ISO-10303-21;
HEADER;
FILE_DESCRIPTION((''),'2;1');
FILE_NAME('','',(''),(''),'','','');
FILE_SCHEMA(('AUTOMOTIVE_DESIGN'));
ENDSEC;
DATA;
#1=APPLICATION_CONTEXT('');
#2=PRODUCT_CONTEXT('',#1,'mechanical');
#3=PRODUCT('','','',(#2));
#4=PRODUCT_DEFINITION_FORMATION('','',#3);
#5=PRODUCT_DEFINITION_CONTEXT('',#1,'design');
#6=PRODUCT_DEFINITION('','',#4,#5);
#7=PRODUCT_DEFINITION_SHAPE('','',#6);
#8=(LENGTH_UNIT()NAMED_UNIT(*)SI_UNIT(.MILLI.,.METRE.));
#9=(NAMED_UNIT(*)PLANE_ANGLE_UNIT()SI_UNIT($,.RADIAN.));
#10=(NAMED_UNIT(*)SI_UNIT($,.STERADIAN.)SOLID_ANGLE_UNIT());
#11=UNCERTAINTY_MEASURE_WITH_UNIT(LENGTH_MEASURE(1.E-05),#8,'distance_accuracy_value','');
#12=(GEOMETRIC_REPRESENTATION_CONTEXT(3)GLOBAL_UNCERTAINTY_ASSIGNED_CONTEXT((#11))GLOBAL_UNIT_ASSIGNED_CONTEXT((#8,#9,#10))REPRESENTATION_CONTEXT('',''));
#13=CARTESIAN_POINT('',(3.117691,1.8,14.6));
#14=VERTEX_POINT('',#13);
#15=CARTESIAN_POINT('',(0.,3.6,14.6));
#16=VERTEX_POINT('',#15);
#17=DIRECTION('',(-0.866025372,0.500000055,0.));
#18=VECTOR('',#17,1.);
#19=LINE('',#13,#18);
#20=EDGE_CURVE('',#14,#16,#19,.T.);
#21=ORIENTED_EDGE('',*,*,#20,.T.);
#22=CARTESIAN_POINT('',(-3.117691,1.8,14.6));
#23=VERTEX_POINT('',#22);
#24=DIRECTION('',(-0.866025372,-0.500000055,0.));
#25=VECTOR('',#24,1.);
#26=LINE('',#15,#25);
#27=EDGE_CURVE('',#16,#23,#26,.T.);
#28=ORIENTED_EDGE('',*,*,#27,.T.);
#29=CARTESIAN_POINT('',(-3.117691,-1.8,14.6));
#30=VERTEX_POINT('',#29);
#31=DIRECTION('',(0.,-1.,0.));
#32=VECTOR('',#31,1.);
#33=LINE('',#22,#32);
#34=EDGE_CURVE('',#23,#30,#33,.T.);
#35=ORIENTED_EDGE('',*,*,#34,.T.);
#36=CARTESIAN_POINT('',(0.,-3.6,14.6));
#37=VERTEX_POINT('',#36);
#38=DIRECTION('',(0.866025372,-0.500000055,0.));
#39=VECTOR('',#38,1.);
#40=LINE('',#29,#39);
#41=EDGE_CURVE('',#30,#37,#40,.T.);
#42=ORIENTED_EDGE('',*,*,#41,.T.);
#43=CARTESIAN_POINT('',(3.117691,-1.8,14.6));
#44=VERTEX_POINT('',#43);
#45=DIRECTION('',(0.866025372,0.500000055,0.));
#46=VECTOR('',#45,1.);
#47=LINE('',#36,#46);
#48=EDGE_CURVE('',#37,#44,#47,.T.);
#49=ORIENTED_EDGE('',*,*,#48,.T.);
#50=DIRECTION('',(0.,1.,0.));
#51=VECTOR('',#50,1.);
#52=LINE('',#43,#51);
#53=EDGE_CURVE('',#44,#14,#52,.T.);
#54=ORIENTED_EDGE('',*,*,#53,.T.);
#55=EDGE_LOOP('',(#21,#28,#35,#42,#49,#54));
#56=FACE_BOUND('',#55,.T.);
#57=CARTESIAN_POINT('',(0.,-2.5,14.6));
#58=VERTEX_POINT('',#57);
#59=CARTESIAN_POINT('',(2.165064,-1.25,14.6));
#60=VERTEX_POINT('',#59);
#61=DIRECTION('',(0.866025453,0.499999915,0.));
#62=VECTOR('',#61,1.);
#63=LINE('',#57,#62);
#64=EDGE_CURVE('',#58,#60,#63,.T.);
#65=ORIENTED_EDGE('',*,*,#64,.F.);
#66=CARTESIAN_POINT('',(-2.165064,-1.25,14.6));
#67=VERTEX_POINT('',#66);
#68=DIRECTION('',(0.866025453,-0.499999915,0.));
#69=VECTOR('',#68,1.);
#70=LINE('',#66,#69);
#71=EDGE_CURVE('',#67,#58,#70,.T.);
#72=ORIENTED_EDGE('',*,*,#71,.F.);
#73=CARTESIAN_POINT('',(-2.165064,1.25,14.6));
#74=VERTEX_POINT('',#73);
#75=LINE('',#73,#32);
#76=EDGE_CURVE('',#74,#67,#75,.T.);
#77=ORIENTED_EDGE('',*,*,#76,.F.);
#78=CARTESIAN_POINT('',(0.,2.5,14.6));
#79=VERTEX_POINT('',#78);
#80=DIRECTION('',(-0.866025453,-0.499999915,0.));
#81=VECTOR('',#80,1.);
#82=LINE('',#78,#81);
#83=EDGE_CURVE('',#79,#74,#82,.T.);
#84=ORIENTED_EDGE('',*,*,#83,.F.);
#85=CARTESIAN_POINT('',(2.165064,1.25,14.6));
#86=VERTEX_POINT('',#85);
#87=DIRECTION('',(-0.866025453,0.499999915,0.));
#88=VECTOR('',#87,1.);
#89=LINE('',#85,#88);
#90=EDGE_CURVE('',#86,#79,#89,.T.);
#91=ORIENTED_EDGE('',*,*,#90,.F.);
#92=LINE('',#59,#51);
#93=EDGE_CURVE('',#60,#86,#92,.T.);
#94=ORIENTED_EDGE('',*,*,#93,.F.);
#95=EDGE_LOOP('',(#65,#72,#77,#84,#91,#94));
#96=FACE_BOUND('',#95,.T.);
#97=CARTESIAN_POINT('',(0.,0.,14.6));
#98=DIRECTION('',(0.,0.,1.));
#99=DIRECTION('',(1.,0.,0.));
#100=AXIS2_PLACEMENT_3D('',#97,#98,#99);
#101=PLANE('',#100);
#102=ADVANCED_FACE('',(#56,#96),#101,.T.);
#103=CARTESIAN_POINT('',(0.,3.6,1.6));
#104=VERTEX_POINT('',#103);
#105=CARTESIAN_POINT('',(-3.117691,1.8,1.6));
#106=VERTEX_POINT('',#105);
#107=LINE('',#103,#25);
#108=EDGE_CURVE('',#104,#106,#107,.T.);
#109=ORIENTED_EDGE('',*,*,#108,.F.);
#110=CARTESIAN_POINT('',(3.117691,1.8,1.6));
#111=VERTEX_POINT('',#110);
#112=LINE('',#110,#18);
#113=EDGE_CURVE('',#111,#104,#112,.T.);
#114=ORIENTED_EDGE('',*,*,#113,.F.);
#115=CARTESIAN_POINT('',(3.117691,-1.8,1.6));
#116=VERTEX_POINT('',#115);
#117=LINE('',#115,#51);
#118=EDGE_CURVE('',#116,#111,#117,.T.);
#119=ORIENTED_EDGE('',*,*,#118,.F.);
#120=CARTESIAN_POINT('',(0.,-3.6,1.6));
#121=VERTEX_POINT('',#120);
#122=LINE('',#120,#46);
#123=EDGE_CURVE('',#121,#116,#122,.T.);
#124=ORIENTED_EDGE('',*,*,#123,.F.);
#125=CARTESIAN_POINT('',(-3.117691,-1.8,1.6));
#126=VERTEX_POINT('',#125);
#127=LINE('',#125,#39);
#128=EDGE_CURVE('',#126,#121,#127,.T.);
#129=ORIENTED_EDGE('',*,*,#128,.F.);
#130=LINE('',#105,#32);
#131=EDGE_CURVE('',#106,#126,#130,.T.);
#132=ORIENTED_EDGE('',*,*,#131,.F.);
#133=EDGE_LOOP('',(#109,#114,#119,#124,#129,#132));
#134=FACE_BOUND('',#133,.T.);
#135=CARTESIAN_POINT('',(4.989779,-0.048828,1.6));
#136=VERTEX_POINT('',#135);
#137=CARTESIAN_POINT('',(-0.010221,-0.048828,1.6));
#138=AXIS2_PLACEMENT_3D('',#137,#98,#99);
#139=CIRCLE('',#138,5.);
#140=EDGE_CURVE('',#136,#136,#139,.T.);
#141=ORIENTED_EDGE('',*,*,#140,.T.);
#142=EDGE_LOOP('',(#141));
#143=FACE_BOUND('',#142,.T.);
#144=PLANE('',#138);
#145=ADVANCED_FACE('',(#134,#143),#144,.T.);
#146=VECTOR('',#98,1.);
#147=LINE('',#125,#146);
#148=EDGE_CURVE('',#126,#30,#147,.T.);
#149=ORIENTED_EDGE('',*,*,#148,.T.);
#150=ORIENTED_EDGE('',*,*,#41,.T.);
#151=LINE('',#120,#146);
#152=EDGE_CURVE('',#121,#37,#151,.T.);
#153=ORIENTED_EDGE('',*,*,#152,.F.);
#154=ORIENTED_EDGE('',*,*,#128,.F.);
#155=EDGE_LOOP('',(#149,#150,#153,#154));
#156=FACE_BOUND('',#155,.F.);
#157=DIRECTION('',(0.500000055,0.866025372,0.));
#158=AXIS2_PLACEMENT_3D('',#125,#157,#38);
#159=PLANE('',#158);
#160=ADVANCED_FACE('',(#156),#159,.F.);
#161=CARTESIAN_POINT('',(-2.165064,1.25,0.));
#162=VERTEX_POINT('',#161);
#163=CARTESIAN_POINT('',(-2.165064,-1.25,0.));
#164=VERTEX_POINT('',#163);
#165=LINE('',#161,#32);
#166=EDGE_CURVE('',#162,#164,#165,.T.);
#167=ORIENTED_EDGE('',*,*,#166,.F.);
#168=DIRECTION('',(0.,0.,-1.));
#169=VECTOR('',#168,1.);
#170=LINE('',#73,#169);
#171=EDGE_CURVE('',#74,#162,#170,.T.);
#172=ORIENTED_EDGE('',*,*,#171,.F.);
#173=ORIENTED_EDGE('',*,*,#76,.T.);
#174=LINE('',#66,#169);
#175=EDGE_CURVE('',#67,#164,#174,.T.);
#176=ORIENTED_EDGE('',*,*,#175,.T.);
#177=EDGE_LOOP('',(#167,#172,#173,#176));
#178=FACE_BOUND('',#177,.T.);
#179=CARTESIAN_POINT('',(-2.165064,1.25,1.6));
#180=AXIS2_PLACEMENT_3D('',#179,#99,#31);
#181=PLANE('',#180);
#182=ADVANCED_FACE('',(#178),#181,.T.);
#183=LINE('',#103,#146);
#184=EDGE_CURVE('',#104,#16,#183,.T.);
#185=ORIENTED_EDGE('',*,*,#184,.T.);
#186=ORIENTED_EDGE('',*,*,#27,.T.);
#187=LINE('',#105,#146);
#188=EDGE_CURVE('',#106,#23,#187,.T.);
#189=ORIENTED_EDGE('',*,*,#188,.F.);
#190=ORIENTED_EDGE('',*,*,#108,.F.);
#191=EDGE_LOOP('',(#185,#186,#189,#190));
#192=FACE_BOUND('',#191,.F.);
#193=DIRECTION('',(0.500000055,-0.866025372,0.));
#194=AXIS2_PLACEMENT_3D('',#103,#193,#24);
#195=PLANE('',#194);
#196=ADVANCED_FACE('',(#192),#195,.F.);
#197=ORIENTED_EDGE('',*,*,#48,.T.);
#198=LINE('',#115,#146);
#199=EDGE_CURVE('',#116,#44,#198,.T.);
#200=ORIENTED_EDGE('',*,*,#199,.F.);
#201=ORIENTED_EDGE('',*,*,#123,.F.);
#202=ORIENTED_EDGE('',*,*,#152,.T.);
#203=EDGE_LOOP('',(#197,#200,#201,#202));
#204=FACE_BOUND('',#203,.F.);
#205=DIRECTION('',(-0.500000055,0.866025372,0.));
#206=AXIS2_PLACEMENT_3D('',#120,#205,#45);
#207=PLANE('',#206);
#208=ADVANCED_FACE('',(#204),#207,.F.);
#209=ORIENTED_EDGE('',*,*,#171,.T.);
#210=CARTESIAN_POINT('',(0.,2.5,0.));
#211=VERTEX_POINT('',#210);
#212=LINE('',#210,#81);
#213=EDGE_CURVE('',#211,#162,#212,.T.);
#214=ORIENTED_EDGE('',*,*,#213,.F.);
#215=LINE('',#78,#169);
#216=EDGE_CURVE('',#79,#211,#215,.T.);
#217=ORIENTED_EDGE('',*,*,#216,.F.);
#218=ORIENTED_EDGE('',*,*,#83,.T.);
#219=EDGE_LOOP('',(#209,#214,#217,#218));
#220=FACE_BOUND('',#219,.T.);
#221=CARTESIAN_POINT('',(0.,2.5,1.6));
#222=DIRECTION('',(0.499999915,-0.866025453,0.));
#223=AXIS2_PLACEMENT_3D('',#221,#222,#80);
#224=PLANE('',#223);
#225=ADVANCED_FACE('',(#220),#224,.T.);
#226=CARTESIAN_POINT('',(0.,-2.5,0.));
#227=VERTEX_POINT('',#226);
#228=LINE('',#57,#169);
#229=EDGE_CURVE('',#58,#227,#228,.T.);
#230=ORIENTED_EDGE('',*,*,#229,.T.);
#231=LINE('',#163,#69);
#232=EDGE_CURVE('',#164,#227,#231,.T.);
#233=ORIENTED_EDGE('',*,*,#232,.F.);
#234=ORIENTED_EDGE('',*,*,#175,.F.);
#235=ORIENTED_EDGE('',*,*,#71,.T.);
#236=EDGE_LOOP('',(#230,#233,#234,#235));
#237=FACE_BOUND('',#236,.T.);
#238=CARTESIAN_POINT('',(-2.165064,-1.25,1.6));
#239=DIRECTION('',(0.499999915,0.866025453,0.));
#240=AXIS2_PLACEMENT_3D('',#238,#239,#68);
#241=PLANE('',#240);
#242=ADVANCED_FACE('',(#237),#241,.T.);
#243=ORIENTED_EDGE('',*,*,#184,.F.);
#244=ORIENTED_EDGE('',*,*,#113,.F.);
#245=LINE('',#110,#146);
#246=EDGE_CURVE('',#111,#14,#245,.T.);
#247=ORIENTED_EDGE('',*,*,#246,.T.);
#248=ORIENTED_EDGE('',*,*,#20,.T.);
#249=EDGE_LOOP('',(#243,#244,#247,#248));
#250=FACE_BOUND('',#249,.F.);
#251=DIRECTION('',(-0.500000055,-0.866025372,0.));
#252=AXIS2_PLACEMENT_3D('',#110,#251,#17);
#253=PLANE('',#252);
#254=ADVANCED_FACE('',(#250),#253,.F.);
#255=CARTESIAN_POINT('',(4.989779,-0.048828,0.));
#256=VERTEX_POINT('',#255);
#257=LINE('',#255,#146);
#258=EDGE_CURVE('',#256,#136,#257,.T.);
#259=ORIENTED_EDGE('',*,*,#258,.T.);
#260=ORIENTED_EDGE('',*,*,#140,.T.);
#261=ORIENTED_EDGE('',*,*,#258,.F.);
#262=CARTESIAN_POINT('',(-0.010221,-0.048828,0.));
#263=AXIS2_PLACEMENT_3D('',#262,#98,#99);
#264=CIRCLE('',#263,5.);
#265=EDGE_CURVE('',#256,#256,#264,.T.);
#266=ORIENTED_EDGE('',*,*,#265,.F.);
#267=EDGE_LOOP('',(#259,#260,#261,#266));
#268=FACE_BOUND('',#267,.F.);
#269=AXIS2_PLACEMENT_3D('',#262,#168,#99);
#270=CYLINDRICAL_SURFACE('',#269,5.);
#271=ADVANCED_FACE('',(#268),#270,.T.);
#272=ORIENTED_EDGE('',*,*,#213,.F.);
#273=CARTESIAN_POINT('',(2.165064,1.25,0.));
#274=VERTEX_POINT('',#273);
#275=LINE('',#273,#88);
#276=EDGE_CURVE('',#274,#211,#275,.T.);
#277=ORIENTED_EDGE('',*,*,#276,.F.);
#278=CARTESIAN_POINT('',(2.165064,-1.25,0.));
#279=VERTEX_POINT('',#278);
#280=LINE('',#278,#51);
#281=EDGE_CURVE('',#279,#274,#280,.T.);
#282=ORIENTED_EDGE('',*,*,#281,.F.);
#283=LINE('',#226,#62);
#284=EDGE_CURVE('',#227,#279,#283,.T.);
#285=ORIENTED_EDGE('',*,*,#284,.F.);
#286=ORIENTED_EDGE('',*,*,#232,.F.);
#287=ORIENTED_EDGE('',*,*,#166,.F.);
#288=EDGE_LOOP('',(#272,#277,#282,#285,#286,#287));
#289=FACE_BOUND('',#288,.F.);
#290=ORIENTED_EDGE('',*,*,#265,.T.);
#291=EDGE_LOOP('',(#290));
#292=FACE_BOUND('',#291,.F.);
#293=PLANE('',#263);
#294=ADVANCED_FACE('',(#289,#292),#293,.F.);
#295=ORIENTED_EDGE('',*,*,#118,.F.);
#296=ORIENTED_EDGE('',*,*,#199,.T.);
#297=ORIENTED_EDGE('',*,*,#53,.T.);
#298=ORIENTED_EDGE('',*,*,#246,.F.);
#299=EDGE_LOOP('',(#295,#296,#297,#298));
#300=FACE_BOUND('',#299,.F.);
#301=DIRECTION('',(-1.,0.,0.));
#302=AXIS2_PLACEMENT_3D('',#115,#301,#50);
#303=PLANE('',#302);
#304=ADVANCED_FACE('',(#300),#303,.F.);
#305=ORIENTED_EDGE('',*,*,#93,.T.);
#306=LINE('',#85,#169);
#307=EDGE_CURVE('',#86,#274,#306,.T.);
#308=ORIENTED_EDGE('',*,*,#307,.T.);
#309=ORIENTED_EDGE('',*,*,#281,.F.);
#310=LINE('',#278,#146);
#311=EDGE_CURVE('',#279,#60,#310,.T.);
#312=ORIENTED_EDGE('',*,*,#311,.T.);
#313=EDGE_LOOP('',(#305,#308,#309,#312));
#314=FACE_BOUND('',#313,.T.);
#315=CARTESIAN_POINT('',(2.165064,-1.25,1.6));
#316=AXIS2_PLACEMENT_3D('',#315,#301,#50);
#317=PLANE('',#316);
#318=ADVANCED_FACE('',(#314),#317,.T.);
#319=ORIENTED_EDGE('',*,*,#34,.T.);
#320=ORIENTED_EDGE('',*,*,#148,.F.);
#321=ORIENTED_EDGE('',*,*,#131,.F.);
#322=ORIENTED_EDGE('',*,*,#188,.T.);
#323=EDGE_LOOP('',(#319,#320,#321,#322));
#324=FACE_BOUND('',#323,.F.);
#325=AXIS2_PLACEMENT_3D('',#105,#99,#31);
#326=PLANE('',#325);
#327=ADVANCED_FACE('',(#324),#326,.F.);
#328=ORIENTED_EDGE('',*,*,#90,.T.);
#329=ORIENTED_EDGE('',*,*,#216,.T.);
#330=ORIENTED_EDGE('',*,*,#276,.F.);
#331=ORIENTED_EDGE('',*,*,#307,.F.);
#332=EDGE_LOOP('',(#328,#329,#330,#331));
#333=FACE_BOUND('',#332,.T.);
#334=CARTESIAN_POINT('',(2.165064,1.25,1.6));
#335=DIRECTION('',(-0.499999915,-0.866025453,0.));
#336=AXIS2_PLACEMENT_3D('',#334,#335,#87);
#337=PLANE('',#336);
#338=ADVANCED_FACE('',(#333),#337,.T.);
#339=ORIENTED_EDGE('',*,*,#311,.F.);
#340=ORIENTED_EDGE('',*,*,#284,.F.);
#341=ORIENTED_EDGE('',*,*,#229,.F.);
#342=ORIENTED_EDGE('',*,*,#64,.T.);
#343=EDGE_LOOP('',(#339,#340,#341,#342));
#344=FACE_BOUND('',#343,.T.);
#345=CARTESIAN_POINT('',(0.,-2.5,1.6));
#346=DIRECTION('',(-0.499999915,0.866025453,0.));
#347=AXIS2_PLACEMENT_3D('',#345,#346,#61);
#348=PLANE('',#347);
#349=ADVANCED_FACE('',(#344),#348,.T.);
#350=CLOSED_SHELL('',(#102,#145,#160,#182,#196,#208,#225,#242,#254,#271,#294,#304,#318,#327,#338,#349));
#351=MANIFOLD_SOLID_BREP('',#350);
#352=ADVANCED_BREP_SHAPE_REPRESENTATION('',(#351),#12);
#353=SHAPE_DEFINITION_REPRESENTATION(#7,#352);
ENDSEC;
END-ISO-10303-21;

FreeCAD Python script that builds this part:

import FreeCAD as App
import Part
import Sketcher
from FreeCAD import Vector
Q = App.Units.Quantity

doc = App.newDocument("Part")
body = doc.addObject("PartDesign::Body", "Body")

# Sketch on XY plane
sketch1 = body.newObject("Sketcher::SketchObject", "Sketch")
sketch1.AttachmentSupport = (doc.getObject("XY_Plane"), [""])
sketch1.MapMode = "FlatFace"
sketch1.addGeometry([
    Part.Circle(Vector(0, 0, 0), Vector(0, 0, 1), 5),  # 0
    Part.LineSegment(Vector(2.2, 1.2, 0), Vector(2.2, -1.2, 0)),  # 1
    Part.LineSegment(Vector(2.2, -1.2, 0), Vector(0, -2.5, 0)),  # 2
    Part.LineSegment(Vector(0, -2.5, 0), Vector(-2.2, -1.2, 0)),  # 3
    Part.LineSegment(Vector(-2.2, -1.2, 0), Vector(-2.2, 1.2, 0)),  # 4
    Part.LineSegment(Vector(-2.2, 1.2, 0), Vector(0, 2.5, 0)),  # 5
    Part.LineSegment(Vector(0, 2.5, 0), Vector(2.2, 1.2, 0)),  # 6
], False)
sketch1.addConstraint([
    Sketcher.Constraint("Coincident", 1, 2, 2, 1),
    Sketcher.Constraint("Coincident", 2, 2, 3, 1),
    Sketcher.Constraint("Coincident", 3, 2, 4, 1),
    Sketcher.Constraint("Coincident", 4, 2, 5, 1),
    Sketcher.Constraint("Coincident", 5, 2, 6, 1),
    Sketcher.Constraint("Coincident", 6, 2, 1, 1),
    Sketcher.Constraint("Vertical", 1),
    Sketcher.Constraint("Vertical", 4),
    Sketcher.Constraint("Symmetric", 1, 2, 4, 2, -1, 1),
    Sketcher.Constraint("Symmetric", 2, 2, 5, 2, -1, 1),
    Sketcher.Constraint("PointOnObject", 2, 2, -2),
    Sketcher.Constraint("Parallel", 3, 6),
    Sketcher.Constraint("Horizontal", 1, 2, 3, 2),
    Sketcher.Constraint("Diameter", 0, 10.0),
    Sketcher.Constraint("Angle", 2, Q("-150.000006 deg")),
    Sketcher.Constraint("DistanceY", 1, 2, 1, 1, 2.5),
    Sketcher.Constraint("DistanceY", 2, 2, 5, 2, 5.0),
    Sketcher.Constraint("DistanceX", 0, 3, -1, 1, 0.010221),
    Sketcher.Constraint("DistanceY", 0, 3, -1, 1, 0.048828),
])
pad1 = body.newObject("PartDesign::Pad", "Pad")
pad1.Profile = sketch1
pad1.Length = 1.6

# Sketch on XY plane
sketch2 = body.newObject("Sketcher::SketchObject", "Sketch001")
sketch2.AttachmentSupport = (doc.getObject("XY_Plane"), [""])
sketch2.MapMode = "FlatFace"
sketch2.AttachmentOffset = App.Placement(Vector(0, 0, 1.6), App.Rotation())
sketch2.addGeometry([
    Part.LineSegment(Vector(3.1, -1.8, 0), Vector(3.1, 1.8, 0)),  # 0
    Part.LineSegment(Vector(3.1, 1.8, 0), Vector(0, 3.6, 0)),  # 1
    Part.LineSegment(Vector(0, 3.6, 0), Vector(-3.1, 1.8, 0)),  # 2
    Part.LineSegment(Vector(-3.1, 1.8, 0), Vector(-3.1, -1.8, 0)),  # 3
    Part.LineSegment(Vector(-3.1, -1.8, 0), Vector(0, -3.6, 0)),  # 4
    Part.LineSegment(Vector(0, -3.6, 0), Vector(3.1, -1.8, 0)),  # 5
    Part.LineSegment(Vector(2.2, 1.2, 0), Vector(2.2, -1.2, 0)),  # 6
    Part.LineSegment(Vector(2.2, -1.2, 0), Vector(0, -2.5, 0)),  # 7
    Part.LineSegment(Vector(0, -2.5, 0), Vector(-2.2, -1.2, 0)),  # 8
    Part.LineSegment(Vector(-2.2, -1.2, 0), Vector(-2.2, 1.2, 0)),  # 9
    Part.LineSegment(Vector(-2.2, 1.2, 0), Vector(0, 2.5, 0)),  # 10
    Part.LineSegment(Vector(0, 2.5, 0), Vector(2.2, 1.2, 0)),  # 11
], False)
sketch2.addConstraint([
    Sketcher.Constraint("Coincident", 0, 2, 1, 1),
    Sketcher.Constraint("Coincident", 1, 2, 2, 1),
    Sketcher.Constraint("Coincident", 2, 2, 3, 1),
    Sketcher.Constraint("Coincident", 3, 2, 4, 1),
    Sketcher.Constraint("Coincident", 4, 2, 5, 1),
    Sketcher.Constraint("Coincident", 5, 2, 0, 1),
    Sketcher.Constraint("Coincident", 6, 2, 7, 1),
    Sketcher.Constraint("Coincident", 7, 2, 8, 1),
    Sketcher.Constraint("Coincident", 8, 2, 9, 1),
    Sketcher.Constraint("Coincident", 9, 2, 10, 1),
    Sketcher.Constraint("Coincident", 10, 2, 11, 1),
    Sketcher.Constraint("Coincident", 11, 2, 6, 1),
    Sketcher.Constraint("Vertical", 0),
    Sketcher.Constraint("Vertical", 3),
    Sketcher.Constraint("Vertical", 6),
    Sketcher.Constraint("Vertical", 9),
    Sketcher.Constraint("Symmetric", 0, 2, 3, 2, -1, 1),
    Sketcher.Constraint("Symmetric", 1, 2, 4, 2, -1, 1),
    Sketcher.Constraint("Symmetric", 6, 2, 9, 2, -1, 1),
    Sketcher.Constraint("Symmetric", 7, 2, 10, 2, -1, 1),
    Sketcher.Constraint("PointOnObject", 1, 2, -2),
    Sketcher.Constraint("PointOnObject", 7, 2, -2),
    Sketcher.Constraint("Parallel", 2, 5),
    Sketcher.Constraint("Parallel", 5, 7),
    Sketcher.Constraint("Parallel", 4, 8),
    Sketcher.Constraint("Parallel", 8, 11),
    Sketcher.Constraint("Horizontal", 0, 2, 2, 2),
    Sketcher.Constraint("Angle", 1, Q("149.999996 deg")),
    Sketcher.Constraint("DistanceY", 0, 1, 0, 2, 3.6),
    Sketcher.Constraint("DistanceY", 6, 2, 6, 1, 2.5),
    Sketcher.Constraint("Distance", 1, 3.6),
    Sketcher.Constraint("Distance", 7, 2.5),
])
pad2 = body.newObject("PartDesign::Pad", "Pad001")
pad2.Profile = sketch2
pad2.Length = 13

doc.recompute()
